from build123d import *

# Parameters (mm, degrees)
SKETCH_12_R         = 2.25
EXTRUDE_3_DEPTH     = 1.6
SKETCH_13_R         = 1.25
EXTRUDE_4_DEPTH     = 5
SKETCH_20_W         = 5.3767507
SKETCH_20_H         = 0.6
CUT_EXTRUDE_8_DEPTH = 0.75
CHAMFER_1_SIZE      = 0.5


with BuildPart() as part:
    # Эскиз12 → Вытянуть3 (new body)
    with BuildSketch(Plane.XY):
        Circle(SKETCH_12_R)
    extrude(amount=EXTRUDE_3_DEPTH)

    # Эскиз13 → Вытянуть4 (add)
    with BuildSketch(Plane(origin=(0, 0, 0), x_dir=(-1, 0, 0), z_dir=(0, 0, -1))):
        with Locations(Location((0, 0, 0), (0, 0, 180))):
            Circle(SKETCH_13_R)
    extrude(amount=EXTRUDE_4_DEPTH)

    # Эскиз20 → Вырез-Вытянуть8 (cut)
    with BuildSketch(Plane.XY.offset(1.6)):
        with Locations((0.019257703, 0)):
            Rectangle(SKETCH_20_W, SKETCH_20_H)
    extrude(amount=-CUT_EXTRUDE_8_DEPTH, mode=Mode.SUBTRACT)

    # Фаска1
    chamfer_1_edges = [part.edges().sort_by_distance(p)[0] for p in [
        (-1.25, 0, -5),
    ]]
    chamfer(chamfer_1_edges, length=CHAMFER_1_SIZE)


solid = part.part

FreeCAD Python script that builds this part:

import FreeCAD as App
import Part
import Sketcher


def edges_at(feature, points):
    """Names of the edges that pass closest to the given points."""
    edges = feature.Shape.Edges
    near = lambda p: min(range(len(edges)), key=lambda i: edges[i].distToShape(Part.Vertex(*p))[0])
    return sorted({f"Edge{near(p) + 1}" for p in points})


def add_polygon(sketch, points):
    """Adds a closed chain of lines whose ends are joined by coincident constraints."""
    first, n = sketch.GeometryCount, len(points)
    for a, b in zip(points, points[1:] + points[:1]):
        sketch.addGeometry(Part.LineSegment(App.Vector(*a, 0), App.Vector(*b, 0)), False)
    for i in range(n):
        sketch.addConstraint(Sketcher.Constraint("Coincident", first + i, 2, first + (i + 1) % n, 1))

doc = App.newDocument("Part")
body = doc.addObject("PartDesign::Body", "Body")

# Sketch on XY plane
sketch1 = body.newObject("Sketcher::SketchObject", "Sketch")
sketch1.AttachmentSupport = (doc.getObject("XY_Plane"), [""])
sketch1.MapMode = "FlatFace"
sketch1.addGeometry(Part.Circle(App.Vector(0, 0, 0), App.Vector(0, 0, 1), 2.2), False)
sketch1.addConstraint([
    Sketcher.Constraint("Coincident", 0, 3, -1, 1),
    Sketcher.Constraint("Diameter", 0, 4.5),
])
pad1 = body.newObject("PartDesign::Pad", "Pad")
pad1.Profile = sketch1
pad1.Length = 1.6

# Sketch on XY plane
sketch2 = body.newObject("Sketcher::SketchObject", "Sketch001")
sketch2.AttachmentSupport = (doc.getObject("XY_Plane"), [""])
sketch2.MapMode = "FlatFace"
sketch2.addGeometry(Part.Circle(App.Vector(0, 0, 0), App.Vector(0, 0, 1), 1.2), False)
sketch2.addConstraint([
    Sketcher.Constraint("Coincident", 0, 3, -1, 1),
    Sketcher.Constraint("Diameter", 0, 2.5),
])
pad2 = body.newObject("PartDesign::Pad", "Pad001")
pad2.Profile = sketch2
pad2.Length = 5
pad2.Reversed = True

# Sketch on XY plane
sketch3 = body.newObject("Sketcher::SketchObject", "Sketch002")
sketch3.AttachmentSupport = (doc.getObject("XY_Plane"), [""])
sketch3.MapMode = "FlatFace"
sketch3.AttachmentOffset = App.Placement(App.Vector(0, 0, 1.6), App.Rotation())
add_polygon(sketch3, [(-2.7, 0.3), (-2.7, -0.3), (2.7, -0.3), (2.7, 0.3)])  # lines 0-3
sketch3.addConstraint([
    Sketcher.Constraint("Vertical", 0),
    Sketcher.Constraint("Horizontal", 1),
    Sketcher.Constraint("Vertical", 2),
    Sketcher.Constraint("Horizontal", 3),
    Sketcher.Constraint("DistanceY", 0, 2, 0, 1, 0.6),
    Sketcher.Constraint("DistanceY", 0, 2, -1, 1, 0.3),
    Sketcher.Constraint("DistanceX", 1, 1, 1, 2, 5.376751),
    Sketcher.Constraint("DistanceX", 0, 2, -1, 1, 2.669118),
])
pocket1 = body.newObject("PartDesign::Pocket", "Pocket")
pocket1.Profile = sketch3
pocket1.Length = 0.75
doc.recompute()

chamfer = body.newObject("PartDesign::Chamfer", "Chamfer")
chamfer.Base = (pocket1, edges_at(pocket1, [(-1.25, 0, -5)]))
chamfer.Size = 0.5

doc.recompute()
